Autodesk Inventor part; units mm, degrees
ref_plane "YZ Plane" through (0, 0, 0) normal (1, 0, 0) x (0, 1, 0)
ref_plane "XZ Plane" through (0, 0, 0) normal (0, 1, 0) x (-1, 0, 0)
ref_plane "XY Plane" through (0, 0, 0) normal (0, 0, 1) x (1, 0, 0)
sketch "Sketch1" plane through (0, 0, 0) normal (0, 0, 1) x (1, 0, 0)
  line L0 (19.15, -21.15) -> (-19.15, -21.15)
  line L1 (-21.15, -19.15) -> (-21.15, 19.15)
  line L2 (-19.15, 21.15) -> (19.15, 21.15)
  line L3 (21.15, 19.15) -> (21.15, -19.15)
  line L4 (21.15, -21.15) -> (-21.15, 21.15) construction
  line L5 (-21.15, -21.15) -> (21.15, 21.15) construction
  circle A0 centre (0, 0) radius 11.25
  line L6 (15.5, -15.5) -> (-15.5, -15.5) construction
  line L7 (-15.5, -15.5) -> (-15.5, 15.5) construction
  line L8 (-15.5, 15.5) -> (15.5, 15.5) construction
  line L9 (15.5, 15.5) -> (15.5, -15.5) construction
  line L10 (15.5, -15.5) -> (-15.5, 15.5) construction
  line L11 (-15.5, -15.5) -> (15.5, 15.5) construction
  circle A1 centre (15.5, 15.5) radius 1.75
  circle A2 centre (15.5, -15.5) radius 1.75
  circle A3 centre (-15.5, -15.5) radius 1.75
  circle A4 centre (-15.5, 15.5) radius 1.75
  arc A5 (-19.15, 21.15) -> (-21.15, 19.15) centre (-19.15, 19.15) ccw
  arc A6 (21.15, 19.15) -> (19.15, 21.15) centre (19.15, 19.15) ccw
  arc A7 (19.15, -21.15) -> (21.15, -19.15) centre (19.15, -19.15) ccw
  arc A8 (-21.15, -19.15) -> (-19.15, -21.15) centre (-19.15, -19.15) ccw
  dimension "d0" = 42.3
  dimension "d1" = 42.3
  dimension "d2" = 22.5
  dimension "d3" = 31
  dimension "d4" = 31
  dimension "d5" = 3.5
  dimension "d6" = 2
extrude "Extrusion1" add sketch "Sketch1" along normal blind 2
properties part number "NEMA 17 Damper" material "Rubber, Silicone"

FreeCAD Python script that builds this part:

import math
import FreeCAD as App
import Part
import Sketcher
Q = App.Units.Quantity

doc = App.newDocument("Part")
body = doc.addObject("PartDesign::Body", "Body")

sketch1 = body.newObject("Sketcher::SketchObject", "Sketch")
sketch1.AttachmentSupport = (doc.getObject("XY_Plane"), [""])
sketch1.MapMode = "FlatFace"
sketch1.addGeometry([
    Part.LineSegment(App.Vector(-19.15, -21.15, 0), App.Vector(19.15, -21.15, 0)),
    Part.ArcOfCircle(Part.Circle(App.Vector(19.15, -19.15, 0), App.Vector(0, 0, 1), 2), math.radians(-90), math.radians(0)),
    Part.LineSegment(App.Vector(21.15, -19.15, 0), App.Vector(21.15, 19.15, 0)),
    Part.ArcOfCircle(Part.Circle(App.Vector(19.15, 19.15, 0), App.Vector(0, 0, 1), 2), math.radians(0), math.radians(90)),
    Part.LineSegment(App.Vector(19.15, 21.15, 0), App.Vector(-19.15, 21.15, 0)),
    Part.ArcOfCircle(Part.Circle(App.Vector(-19.15, 19.15, 0), App.Vector(0, 0, 1), 2), math.radians(90), math.radians(180)),
    Part.LineSegment(App.Vector(-21.15, 19.15, 0), App.Vector(-21.15, -19.15, 0)),
    Part.ArcOfCircle(Part.Circle(App.Vector(-19.15, -19.15, 0), App.Vector(0, 0, 1), 2), math.radians(180), math.radians(270)),
    Part.Circle(App.Vector(-15.5, -15.5, 0), App.Vector(0, 0, 1), 1.75),
    Part.Circle(App.Vector(15.5, -15.5, 0), App.Vector(0, 0, 1), 1.75),
    Part.Circle(App.Vector(-15.5, 15.5, 0), App.Vector(0, 0, 1), 1.75),
    Part.Circle(App.Vector(0, 0, 0), App.Vector(0, 0, 1), 11.25),
    Part.Circle(App.Vector(15.5, 15.5, 0), App.Vector(0, 0, 1), 1.75),
], False)
sketch1.addConstraint([
    Sketcher.Constraint("Tangent", 0, 2, 1, 1),
    Sketcher.Constraint("Tangent", 1, 2, 2, 1),
    Sketcher.Constraint("Tangent", 2, 2, 3, 1),
    Sketcher.Constraint("Tangent", 3, 2, 4, 1),
    Sketcher.Constraint("Tangent", 4, 2, 5, 1),
    Sketcher.Constraint("Tangent", 5, 2, 6, 1),
    Sketcher.Constraint("Tangent", 6, 2, 7, 1),
    Sketcher.Constraint("Tangent", 7, 2, 0, 1),
    Sketcher.Constraint("Horizontal", 0),
    Sketcher.Constraint("Vertical", 2),
    Sketcher.Constraint("Horizontal", 4),
    Sketcher.Constraint("Vertical", 6),
    Sketcher.Constraint("Coincident", 11, 3, -1, 1),
    Sketcher.Constraint("Equal", 1, 3),
    Sketcher.Constraint("Equal", 3, 5),
    Sketcher.Constraint("Equal", 5, 7),
    Sketcher.Constraint("Equal", 8, 9),
    Sketcher.Constraint("Equal", 9, 10),
    Sketcher.Constraint("Equal", 10, 12),
    Sketcher.Constraint("Symmetric", 1, 3, 5, 3, -1, 1),
    Sketcher.Constraint("Symmetric", 9, 3, 10, 3, -1, 1),
    Sketcher.Constraint("Symmetric", 8, 3, 12, 3, -1, 1),
    Sketcher.Constraint("Symmetric", 8, 3, 9, 3, -2),
    Sketcher.Constraint("Equal", 4, 2),
    Sketcher.Constraint("Radius", 1, Q("2 mm")),
    Sketcher.Constraint("Diameter", 8, Q("3.5 mm")),
    Sketcher.Constraint("Diameter", 11, Q("22.5 mm")),
    Sketcher.Constraint("DistanceX", 8, 3, 9, 3, Q("31 mm")),
    Sketcher.Constraint("DistanceY", 8, 3, 10, 3, Q("31 mm")),
    Sketcher.Constraint("DistanceX", 0, 1, 0, 2, Q("38.3 mm")),
])
pad1 = body.newObject("PartDesign::Pad", "Pad")
pad1.Profile = sketch1
pad1.Length = 2

doc.recompute()
